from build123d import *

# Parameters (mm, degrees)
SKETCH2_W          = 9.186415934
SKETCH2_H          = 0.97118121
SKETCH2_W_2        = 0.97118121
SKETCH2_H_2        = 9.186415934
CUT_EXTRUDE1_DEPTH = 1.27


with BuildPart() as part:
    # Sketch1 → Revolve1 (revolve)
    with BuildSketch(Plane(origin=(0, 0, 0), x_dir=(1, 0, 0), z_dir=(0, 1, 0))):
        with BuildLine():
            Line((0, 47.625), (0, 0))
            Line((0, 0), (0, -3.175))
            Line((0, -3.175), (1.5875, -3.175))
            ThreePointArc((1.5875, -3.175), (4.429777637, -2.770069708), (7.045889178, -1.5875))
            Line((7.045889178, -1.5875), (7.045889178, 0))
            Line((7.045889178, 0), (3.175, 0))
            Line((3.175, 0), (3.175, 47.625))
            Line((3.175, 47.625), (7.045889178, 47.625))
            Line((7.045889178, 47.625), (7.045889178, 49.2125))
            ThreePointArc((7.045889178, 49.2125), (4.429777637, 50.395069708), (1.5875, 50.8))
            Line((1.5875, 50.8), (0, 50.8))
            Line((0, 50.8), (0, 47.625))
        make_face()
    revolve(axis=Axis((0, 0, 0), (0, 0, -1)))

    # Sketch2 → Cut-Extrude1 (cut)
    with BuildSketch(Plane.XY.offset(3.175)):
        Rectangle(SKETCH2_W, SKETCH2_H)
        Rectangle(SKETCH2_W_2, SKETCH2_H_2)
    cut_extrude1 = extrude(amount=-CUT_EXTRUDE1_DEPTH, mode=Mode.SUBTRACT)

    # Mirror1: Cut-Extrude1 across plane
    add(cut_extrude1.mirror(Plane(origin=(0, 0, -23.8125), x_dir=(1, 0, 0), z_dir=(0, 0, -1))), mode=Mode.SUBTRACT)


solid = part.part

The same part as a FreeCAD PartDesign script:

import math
import FreeCAD as App
import Part
import Sketcher

V = App.Vector
Q = App.Units.Quantity

doc = App.newDocument("Part")
body = doc.addObject("PartDesign::Body", "Body")

# Sketch on XZ plane
sketch1 = body.newObject("Sketcher::SketchObject", "Sketch")
sketch1.AttachmentSupport = (doc.getObject("XZ_Plane"), [""])
sketch1.MapMode = "FlatFace"
sketch1.addGeometry([
    Part.LineSegment(V(0, 3.2, 0), V(1.6, 3.2, 0)),  # 0
    Part.ArcOfCircle(Part.Circle(V(1.6, -7, 0), V(0, 0, 1), 10.2), math.radians(58), math.radians(90)),  # 1
    Part.LineSegment(V(7, 1.6, 0), V(7, 0, 0)),  # 2
    Part.LineSegment(V(7, 0, 0), V(3.2, 0, 0)),  # 3
    Part.LineSegment(V(3.2, 0, 0), V(3.2, -47.6, 0)),  # 4
    Part.LineSegment(V(3.2, -47.6, 0), V(7, -47.6, 0)),  # 5
    Part.LineSegment(V(7, -47.6, 0), V(7, -49.2, 0)),  # 6
    Part.ArcOfCircle(Part.Circle(V(1.6, -40.6, 0), V(0, 0, 1), 10.2), math.radians(-90), math.radians(-58)),  # 7
    Part.LineSegment(V(1.6, -50.8, 0), V(0, -50.8, 0)),  # 8
    Part.LineSegment(V(0, -50.8, 0), V(0, 3.2, 0)),  # 9
], False)
sketch1.addConstraint([
    Sketcher.Constraint("Tangent", 0, 2, 1, 2),
    Sketcher.Constraint("Coincident", 1, 1, 2, 1),
    Sketcher.Constraint("Coincident", 2, 2, 3, 1),
    Sketcher.Constraint("Coincident", 3, 2, 4, 1),
    Sketcher.Constraint("Coincident", 4, 2, 5, 1),
    Sketcher.Constraint("Coincident", 5, 2, 6, 1),
    Sketcher.Constraint("Coincident", 6, 2, 7, 2),
    Sketcher.Constraint("Tangent", 7, 1, 8, 1),
    Sketcher.Constraint("Coincident", 8, 2, 9, 1),
    Sketcher.Constraint("Coincident", 9, 2, 0, 1),
    Sketcher.Constraint("Horizontal", 0),
    Sketcher.Constraint("Vertical", 2),
    Sketcher.Constraint("Horizontal", 3),
    Sketcher.Constraint("Vertical", 4),
    Sketcher.Constraint("Horizontal", 5),
    Sketcher.Constraint("Vertical", 6),
    Sketcher.Constraint("Horizontal", 8),
    Sketcher.Constraint("Vertical", 9),
    Sketcher.Constraint("Equal", 1, 7),
    Sketcher.Constraint("PointOnObject", 2, 2, -1),
    Sketcher.Constraint("PointOnObject", 8, 2, -2),
    Sketcher.Constraint("Vertical", 1, 3, 7, 3),
    Sketcher.Constraint("Vertical", 2, 2, 5, 2),
    Sketcher.Constraint("Equal", 8, 2),
    Sketcher.Constraint("Equal", 2, 6),
    Sketcher.Constraint("DistanceY", 7, 1, -1, 1, Q("2 in")),
    Sketcher.Constraint("DistanceX", 0, 1, 0, 2, Q("0.0625 in")),
    Sketcher.Constraint("DistanceY", 4, 2, 4, 1, Q("1.875 in")),
    Sketcher.Constraint("DistanceX", -1, 1, 3, 2, Q("0.125 in")),
    Sketcher.Constraint("Radius", 1, Q("10.177691 mm")),
])
revolution = body.newObject("PartDesign::Revolution", "Revolution")
revolution.Profile = sketch1
revolution.ReferenceAxis = (sketch1, ["V_Axis"])
revolution.Angle = 360

# Sketch on XY plane
sketch2 = body.newObject("Sketcher::SketchObject", "Sketch001")
sketch2.AttachmentSupport = (doc.getObject("XY_Plane"), [""])
sketch2.MapMode = "FlatFace"
sketch2.AttachmentOffset = App.Placement(V(0, 0, 0.125 * 25.4), App.Rotation())
sketch2.addGeometry([
    Part.LineSegment(V(-4.6, 0.5, 0), V(-4.6, -0.5, 0)),  # 0
    Part.LineSegment(V(-4.6, -0.5, 0), V(-0.5, -0.5, 0)),  # 1
    Part.LineSegment(V(-0.5, -0.5, 0), V(-0.5, -4.6, 0)),  # 2
    Part.LineSegment(V(-0.5, -4.6, 0), V(0.5, -4.6, 0)),  # 3
    Part.LineSegment(V(0.5, -4.6, 0), V(0.5, -0.5, 0)),  # 4
    Part.LineSegment(V(0.5, -0.5, 0), V(4.6, -0.5, 0)),  # 5
    Part.LineSegment(V(4.6, -0.5, 0), V(4.6, 0.5, 0)),  # 6
    Part.LineSegment(V(4.6, 0.5, 0), V(0.5, 0.5, 0)),  # 7
    Part.LineSegment(V(0.5, 0.5, 0), V(0.5, 4.6, 0)),  # 8
    Part.LineSegment(V(0.5, 4.6, 0), V(-0.5, 4.6, 0)),  # 9
    Part.LineSegment(V(-0.5, 4.6, 0), V(-0.5, 0.5, 0)),  # 10
    Part.LineSegment(V(-0.5, 0.5, 0), V(-4.6, 0.5, 0)),  # 11
], False)
sketch2.addConstraint([
    Sketcher.Constraint("Coincident", 0, 2, 1, 1),
    Sketcher.Constraint("Coincident", 1, 2, 2, 1),
    Sketcher.Constraint("Coincident", 2, 2, 3, 1),
    Sketcher.Constraint("Coincident", 3, 2, 4, 1),
    Sketcher.Constraint("Coincident", 4, 2, 5, 1),
    Sketcher.Constraint("Coincident", 5, 2, 6, 1),
    Sketcher.Constraint("Coincident", 6, 2, 7, 1),
    Sketcher.Constraint("Coincident", 7, 2, 8, 1),
    Sketcher.Constraint("Coincident", 8, 2, 9, 1),
    Sketcher.Constraint("Coincident", 9, 2, 10, 1),
    Sketcher.Constraint("Coincident", 10, 2, 11, 1),
    Sketcher.Constraint("Coincident", 11, 2, 0, 1),
    Sketcher.Constraint("Vertical", 0),
    Sketcher.Constraint("Horizontal", 1),
    Sketcher.Constraint("Vertical", 2),
    Sketcher.Constraint("Horizontal", 3),
    Sketcher.Constraint("Vertical", 4),
    Sketcher.Constraint("Horizontal", 5),
    Sketcher.Constraint("Vertical", 6),
    Sketcher.Constraint("Horizontal", 7),
    Sketcher.Constraint("Vertical", 8),
    Sketcher.Constraint("Horizontal", 9),
    Sketcher.Constraint("Vertical", 10),
    Sketcher.Constraint("Horizontal", 11),
    Sketcher.Constraint("Symmetric", 0, 2, 6, 2, -1, 1),
    Sketcher.Constraint("Symmetric", 2, 2, 8, 2, -1, 1),
    Sketcher.Constraint("Symmetric", 4, 2, 10, 2, -1, 1),
    Sketcher.Constraint("Symmetric", 1, 2, 4, 2, -2),
    Sketcher.Constraint("Equal", 9, 0),
    Sketcher.Constraint("Equal", 11, 2),
    Sketcher.Constraint("DistanceX", 3, 1, 3, 2, Q("0.971181 mm")),
    Sketcher.Constraint("DistanceX", 0, 2, 3, 2, Q("5.078799 mm")),
])
pocket1 = body.newObject("PartDesign::Pocket", "Pocket")
pocket1.Profile = sketch2
pocket1.Length = Q("0.05 in")
doc.recompute()

datumplane = body.newObject("PartDesign::Plane", "DatumPlane")
datumplane.AttachmentSupport = (doc.getObject("XY_Plane"), [""])
datumplane.MapMode = "FlatFace"
datumplane.AttachmentOffset = App.Placement(V(0, 0, -0.9375 * 25.4), App.Rotation())
mirrored = body.newObject("PartDesign::Mirrored", "Mirrored")
mirrored.Originals = [pocket1]
mirrored.MirrorPlane = (datumplane, [""])
body.Tip = mirrored

doc.recompute()
